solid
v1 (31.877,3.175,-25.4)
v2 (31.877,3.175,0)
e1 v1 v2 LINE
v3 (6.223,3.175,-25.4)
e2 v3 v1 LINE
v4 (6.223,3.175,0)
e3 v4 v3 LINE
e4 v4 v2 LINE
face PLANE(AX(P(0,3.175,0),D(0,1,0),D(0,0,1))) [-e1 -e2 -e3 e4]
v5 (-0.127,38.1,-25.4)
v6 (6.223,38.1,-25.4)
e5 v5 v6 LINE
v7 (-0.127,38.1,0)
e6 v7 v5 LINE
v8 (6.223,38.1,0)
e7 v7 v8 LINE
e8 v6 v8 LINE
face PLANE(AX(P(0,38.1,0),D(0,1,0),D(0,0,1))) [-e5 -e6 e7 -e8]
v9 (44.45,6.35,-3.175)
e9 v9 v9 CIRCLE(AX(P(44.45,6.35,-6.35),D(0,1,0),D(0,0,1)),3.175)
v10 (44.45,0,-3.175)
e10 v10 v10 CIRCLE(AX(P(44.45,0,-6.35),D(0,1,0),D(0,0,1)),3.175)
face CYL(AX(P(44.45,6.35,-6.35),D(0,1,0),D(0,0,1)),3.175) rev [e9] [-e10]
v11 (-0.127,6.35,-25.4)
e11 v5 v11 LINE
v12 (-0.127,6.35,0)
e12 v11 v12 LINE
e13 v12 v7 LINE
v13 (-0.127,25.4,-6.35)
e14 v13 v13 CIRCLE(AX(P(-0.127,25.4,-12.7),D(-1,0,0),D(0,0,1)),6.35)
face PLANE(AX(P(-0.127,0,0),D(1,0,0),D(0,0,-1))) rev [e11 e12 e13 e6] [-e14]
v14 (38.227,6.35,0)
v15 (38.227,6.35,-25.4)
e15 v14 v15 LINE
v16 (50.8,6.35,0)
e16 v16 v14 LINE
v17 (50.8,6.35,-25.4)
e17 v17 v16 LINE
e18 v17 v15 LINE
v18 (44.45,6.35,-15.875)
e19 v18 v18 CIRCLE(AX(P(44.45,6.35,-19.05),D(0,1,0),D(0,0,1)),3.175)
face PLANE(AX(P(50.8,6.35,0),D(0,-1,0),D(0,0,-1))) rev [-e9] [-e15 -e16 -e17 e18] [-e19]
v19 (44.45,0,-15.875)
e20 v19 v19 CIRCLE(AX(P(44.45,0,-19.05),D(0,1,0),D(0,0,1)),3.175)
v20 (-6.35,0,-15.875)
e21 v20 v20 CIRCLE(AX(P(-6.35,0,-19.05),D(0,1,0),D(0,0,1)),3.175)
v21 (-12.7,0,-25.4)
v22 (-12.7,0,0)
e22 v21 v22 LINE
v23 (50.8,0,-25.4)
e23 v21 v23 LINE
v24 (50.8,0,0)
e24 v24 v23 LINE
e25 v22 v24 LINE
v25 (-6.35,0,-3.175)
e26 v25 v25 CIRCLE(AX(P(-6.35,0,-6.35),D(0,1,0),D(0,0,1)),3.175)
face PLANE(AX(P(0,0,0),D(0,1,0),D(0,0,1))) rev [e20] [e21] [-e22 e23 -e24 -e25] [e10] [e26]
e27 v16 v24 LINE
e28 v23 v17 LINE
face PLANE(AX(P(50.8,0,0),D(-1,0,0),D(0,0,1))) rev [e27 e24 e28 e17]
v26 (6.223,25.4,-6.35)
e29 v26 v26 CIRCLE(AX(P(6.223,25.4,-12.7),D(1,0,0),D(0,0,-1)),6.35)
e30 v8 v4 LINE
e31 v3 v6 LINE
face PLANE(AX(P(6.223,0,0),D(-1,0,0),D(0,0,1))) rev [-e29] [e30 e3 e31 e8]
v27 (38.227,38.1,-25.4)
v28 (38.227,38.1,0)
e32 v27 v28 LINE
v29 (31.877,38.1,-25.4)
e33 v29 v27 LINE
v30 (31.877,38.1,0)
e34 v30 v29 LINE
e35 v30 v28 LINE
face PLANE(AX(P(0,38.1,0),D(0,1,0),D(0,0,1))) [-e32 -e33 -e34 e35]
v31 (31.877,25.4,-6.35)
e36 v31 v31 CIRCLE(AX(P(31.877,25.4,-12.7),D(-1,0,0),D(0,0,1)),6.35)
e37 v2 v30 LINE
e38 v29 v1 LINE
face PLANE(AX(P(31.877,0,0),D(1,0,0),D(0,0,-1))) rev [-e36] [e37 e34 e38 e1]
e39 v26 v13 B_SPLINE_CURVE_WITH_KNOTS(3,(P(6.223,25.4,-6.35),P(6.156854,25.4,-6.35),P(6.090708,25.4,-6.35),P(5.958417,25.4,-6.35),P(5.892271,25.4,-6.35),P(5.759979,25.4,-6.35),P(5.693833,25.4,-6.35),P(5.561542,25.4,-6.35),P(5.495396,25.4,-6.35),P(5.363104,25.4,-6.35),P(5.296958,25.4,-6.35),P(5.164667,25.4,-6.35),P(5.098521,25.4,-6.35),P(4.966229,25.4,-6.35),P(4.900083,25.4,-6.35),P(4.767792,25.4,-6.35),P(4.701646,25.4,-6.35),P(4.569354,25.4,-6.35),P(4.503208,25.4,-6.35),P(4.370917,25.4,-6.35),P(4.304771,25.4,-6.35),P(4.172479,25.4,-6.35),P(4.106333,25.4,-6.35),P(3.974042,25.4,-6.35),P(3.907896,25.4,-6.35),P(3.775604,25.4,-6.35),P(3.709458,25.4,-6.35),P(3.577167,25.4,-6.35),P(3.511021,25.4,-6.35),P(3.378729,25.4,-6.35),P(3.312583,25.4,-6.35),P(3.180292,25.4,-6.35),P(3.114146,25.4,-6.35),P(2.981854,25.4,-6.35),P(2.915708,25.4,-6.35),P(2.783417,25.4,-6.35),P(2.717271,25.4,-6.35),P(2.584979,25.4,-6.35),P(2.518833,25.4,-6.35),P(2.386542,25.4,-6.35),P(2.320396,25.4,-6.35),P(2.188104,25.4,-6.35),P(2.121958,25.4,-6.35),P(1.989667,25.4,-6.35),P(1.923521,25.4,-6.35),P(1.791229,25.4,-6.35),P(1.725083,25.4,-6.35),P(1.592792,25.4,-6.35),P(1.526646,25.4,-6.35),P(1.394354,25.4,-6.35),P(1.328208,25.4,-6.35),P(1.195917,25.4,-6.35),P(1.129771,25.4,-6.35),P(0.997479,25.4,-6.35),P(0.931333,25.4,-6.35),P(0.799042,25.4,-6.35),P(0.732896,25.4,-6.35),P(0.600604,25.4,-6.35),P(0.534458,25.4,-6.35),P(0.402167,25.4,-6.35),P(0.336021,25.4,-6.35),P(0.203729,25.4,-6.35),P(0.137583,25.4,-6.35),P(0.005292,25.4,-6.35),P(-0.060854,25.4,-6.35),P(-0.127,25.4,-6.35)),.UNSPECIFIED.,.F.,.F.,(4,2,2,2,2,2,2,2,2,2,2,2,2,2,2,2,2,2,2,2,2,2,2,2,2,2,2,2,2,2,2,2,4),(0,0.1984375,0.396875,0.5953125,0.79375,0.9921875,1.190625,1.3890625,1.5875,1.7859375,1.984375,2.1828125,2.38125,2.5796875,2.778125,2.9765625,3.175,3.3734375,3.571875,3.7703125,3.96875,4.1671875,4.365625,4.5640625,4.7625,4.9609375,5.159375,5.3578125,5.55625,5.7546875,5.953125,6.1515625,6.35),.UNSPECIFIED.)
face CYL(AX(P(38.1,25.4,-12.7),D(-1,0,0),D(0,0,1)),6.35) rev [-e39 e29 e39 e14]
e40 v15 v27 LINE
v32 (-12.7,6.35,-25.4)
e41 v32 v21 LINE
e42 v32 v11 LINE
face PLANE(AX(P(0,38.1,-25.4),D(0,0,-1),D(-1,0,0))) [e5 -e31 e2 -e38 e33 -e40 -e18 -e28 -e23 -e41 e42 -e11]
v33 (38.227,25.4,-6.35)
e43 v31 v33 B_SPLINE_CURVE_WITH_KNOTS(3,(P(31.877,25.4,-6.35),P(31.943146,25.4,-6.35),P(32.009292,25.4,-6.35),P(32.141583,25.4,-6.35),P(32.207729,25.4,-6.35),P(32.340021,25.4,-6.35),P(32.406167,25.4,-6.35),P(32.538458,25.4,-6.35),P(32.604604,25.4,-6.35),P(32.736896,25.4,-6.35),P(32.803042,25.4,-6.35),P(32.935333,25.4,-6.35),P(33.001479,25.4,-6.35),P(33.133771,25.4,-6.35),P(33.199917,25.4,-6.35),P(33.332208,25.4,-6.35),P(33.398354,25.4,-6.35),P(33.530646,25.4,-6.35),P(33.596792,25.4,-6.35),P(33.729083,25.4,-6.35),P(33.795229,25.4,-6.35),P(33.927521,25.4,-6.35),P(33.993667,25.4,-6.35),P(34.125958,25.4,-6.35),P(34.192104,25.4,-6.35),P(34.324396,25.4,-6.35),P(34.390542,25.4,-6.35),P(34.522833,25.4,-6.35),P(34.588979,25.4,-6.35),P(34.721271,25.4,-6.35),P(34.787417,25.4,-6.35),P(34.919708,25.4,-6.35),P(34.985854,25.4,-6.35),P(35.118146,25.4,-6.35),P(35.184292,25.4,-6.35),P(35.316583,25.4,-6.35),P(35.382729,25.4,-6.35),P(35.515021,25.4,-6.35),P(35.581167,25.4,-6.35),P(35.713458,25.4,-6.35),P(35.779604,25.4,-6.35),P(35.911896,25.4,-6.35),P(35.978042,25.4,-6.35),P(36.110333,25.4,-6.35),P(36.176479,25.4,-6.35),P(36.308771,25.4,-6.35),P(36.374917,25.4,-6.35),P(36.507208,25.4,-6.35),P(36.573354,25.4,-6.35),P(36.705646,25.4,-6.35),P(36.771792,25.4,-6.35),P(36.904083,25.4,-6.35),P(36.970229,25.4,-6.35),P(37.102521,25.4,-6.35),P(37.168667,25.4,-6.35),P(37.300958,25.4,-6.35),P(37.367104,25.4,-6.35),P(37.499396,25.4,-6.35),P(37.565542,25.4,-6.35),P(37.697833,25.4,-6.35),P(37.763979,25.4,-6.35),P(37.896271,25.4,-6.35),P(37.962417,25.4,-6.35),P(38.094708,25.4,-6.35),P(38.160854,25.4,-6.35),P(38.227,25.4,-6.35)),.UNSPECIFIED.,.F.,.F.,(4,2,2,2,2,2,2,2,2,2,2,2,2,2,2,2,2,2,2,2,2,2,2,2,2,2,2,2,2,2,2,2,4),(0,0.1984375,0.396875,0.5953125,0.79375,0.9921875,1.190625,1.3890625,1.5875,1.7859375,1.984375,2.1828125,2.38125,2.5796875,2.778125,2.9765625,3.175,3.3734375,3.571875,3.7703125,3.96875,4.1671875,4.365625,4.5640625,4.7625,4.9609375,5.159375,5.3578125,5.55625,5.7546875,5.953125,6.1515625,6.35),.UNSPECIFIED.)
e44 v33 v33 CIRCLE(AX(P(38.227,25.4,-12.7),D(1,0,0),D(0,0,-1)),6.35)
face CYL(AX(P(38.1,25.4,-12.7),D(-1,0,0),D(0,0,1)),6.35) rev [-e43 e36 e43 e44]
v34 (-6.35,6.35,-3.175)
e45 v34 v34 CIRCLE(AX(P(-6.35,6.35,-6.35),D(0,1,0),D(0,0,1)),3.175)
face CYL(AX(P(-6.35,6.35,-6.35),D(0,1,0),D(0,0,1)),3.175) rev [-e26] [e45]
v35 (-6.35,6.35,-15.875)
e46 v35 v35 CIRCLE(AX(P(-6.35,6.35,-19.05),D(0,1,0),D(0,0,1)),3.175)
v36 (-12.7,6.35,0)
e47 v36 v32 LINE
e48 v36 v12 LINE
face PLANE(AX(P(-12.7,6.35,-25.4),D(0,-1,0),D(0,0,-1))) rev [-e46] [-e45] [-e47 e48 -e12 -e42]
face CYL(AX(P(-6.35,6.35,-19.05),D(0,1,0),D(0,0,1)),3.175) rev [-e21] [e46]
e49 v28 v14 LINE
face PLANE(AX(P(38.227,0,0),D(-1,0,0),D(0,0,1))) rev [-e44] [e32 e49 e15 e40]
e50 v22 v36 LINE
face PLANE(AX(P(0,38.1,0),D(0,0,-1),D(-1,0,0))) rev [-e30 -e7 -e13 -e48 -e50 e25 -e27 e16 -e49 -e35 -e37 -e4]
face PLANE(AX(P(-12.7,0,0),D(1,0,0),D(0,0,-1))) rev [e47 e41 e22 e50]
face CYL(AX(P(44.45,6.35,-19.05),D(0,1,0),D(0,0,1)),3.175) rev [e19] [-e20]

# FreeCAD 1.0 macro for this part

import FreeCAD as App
import Part
import Sketcher
Q = App.Units.Quantity


def add_polygon(sketch, points):
    """Adds a closed chain of lines whose ends are joined by coincident constraints."""
    first, n = sketch.GeometryCount, len(points)
    for a, b in zip(points, points[1:] + points[:1]):
        sketch.addGeometry(Part.LineSegment(App.Vector(*a, 0), App.Vector(*b, 0)), False)
    for i in range(n):
        sketch.addConstraint(Sketcher.Constraint("Coincident", first + i, 2, first + (i + 1) % n, 1))

doc = App.newDocument("Part")
params = doc.addObject("Spreadsheet::Sheet", "Params")
for row, (alias, value) in enumerate([
    ("sketch1_height", "1 in"),
    ("sketch1_width", "0.25 in"),
    ("pad1_length", "1.5 in"),
    ("sketch2_height", "1 in"),
    ("sketch2_width", "0.25 in"),
    ("pad2_length", "1.5 in"),
    ("sketch3_width", "1 in"),
    ("pad3_length", "0.125 in"),
    ("sketch4_diameter", "0.5 in"),
    ("sketch5_height", "1 in"),
    ("sketch5_width", "0.25 in"),
    ("pad4_length", "0.5 in"),
    ("sketch6_height", "1 in"),
    ("sketch6_width", "0.25 in"),
    ("pad5_length", "0.5 in"),
    ("sketch7_diameter", "0.25 in"),
    ("hole_diameter", "0.25 in"),
    ("hole_depth", "1 in"),
    ("sketch8_diameter", "0.5 in"),
    ("sketch8_height", "1 in"),
    ("sketch8_width", "1.375 in"),
    ("pocket2_length", "0.005 in"),
    ("sketch9_diameter", "0.5 in"),
    ("sketch9_height", "1 in"),
    ("sketch9_width", "1.375 in"),
    ("pocket3_length", "0.005 in"),
    ("sketch10_diameter", "0.5 in"),
    ("sketch10_height", "1 in"),
    ("sketch10_width", "1.25 in"),
    ("pad6_length", "0.005 in"),
    ("sketch11_diameter", "0.5 in"),
    ("sketch11_height", "1 in"),
    ("sketch11_width", "1.25 in"),
    ("pad7_length", "0.005 in"),
], start=1):
    params.set(f"A{row}", alias)
    params.set(f"B{row}", "=" + value)
    params.setAlias(f"B{row}", alias)

body = doc.addObject("PartDesign::Body", "Body")

# Sketch on XZ plane
sketch1 = doc.addObject("Sketcher::SketchObject", "Sketch")
body.addObject(sketch1)
sketch1.AttachmentSupport = (doc.XZ_Plane, [""])
sketch1.MapMode = "FlatFace"
add_polygon(sketch1, [(0, -25), (0, 0), (6, 0), (6, -25)])  # lines 0-3
sketch1.addConstraint(Sketcher.Constraint("Vertical", 0))
sketch1.addConstraint(Sketcher.Constraint("Horizontal", 1))
sketch1.addConstraint(Sketcher.Constraint("Vertical", 2))
sketch1.addConstraint(Sketcher.Constraint("Horizontal", 3))
sketch1.addConstraint(Sketcher.Constraint("Coincident", 0, 2, -1, 1))
sketch1.addConstraint(Sketcher.Constraint("DistanceY", 0, 1, 0, 2, Q("1 in")))
sketch1.addConstraint(Sketcher.Constraint("DistanceX", 1, 1, 1, 2, Q("0.25 in")))
sketch1.setExpression("Constraints[9]", "Params.sketch1_height")
sketch1.setExpression("Constraints[10]", "Params.sketch1_width")
pad1 = doc.addObject("PartDesign::Pad", "Pad")
body.addObject(pad1)
pad1.Profile = sketch1
pad1.setExpression("Length", "Params.pad1_length")
pad1.Reversed = True
body2 = doc.addObject("PartDesign::Body", "Body001")

# Sketch on XZ plane
sketch2 = doc.addObject("Sketcher::SketchObject", "Sketch001")
body2.addObject(sketch2)
sketch2.AttachmentSupport = (doc.getObject("XZ_Plane001"), [""])
sketch2.MapMode = "FlatFace"
add_polygon(sketch2, [(32, -25), (32, 0), (38, 0), (38, -25)])  # lines 0-3
sketch2.addConstraint(Sketcher.Constraint("Vertical", 0))
sketch2.addConstraint(Sketcher.Constraint("Horizontal", 1))
sketch2.addConstraint(Sketcher.Constraint("Vertical", 2))
sketch2.addConstraint(Sketcher.Constraint("Horizontal", 3))
sketch2.addConstraint(Sketcher.Constraint("PointOnObject", 0, 2, -1))
sketch2.addConstraint(Sketcher.Constraint("DistanceY", 0, 1, 0, 2, Q("1 in")))
sketch2.addConstraint(Sketcher.Constraint("DistanceX", 1, 1, 1, 2, Q("0.25 in")))
sketch2.addConstraint(Sketcher.Constraint("DistanceX", -1, 1, 1, 2, Q("1.5 in")))
sketch2.setExpression("Constraints[9]", "Params.sketch2_height")
sketch2.setExpression("Constraints[10]", "Params.sketch2_width")
pad2 = doc.addObject("PartDesign::Pad", "Pad001")
body2.addObject(pad2)
pad2.Profile = sketch2
pad2.setExpression("Length", "Params.pad2_length")
pad2.Reversed = True
body.AllowCompound = True
doc.recompute()

boolean = doc.addObject("PartDesign::Boolean", "Boolean")
body.addObject(boolean)
boolean.Type = "Fuse"
boolean.addObjects([body2])

# Sketch on XZ plane
sketch3 = doc.addObject("Sketcher::SketchObject", "Sketch002")
body.addObject(sketch3)
sketch3.AttachmentSupport = (doc.XZ_Plane, [""])
sketch3.MapMode = "FlatFace"
add_polygon(sketch3, [(6, -25), (6, 0), (32, 0), (32, -25)])  # lines 0-3
sketch3.addConstraint(Sketcher.Constraint("Vertical", 0))
sketch3.addConstraint(Sketcher.Constraint("Horizontal", 1))
sketch3.addConstraint(Sketcher.Constraint("Vertical", 2))
sketch3.addConstraint(Sketcher.Constraint("Horizontal", 3))
sketch3.addConstraint(Sketcher.Constraint("PointOnObject", 0, 2, -1))
sketch3.addConstraint(Sketcher.Constraint("Equal", 3, 0))
sketch3.addConstraint(Sketcher.Constraint("DistanceX", 1, 1, 1, 2, Q("1 in")))
sketch3.addConstraint(Sketcher.Constraint("DistanceX", -1, 1, 0, 2, Q("0.25 in")))
sketch3.setExpression("Constraints[10]", "Params.sketch3_width")
pad3 = doc.addObject("PartDesign::Pad", "Pad002")
body.addObject(pad3)
pad3.Profile = sketch3
pad3.setExpression("Length", "Params.pad3_length")
pad3.Reversed = True

# Sketch on YZ plane
sketch4 = doc.addObject("Sketcher::SketchObject", "Sketch003")
body.addObject(sketch4)
sketch4.AttachmentSupport = (doc.YZ_Plane, [""])
sketch4.MapMode = "FlatFace"
sketch4.addGeometry(Part.Circle(App.Vector(25, -13, 0), App.Vector(0, 0, 1), 6), False)
sketch4.addConstraint(Sketcher.Constraint("Diameter", 0, Q("0.5 in")))
sketch4.addConstraint(Sketcher.Constraint("DistanceX", -1, 1, 0, 3, Q("1 in")))
sketch4.addConstraint(Sketcher.Constraint("DistanceY", 0, 3, -1, 1, Q("0.5 in")))
sketch4.setExpression("Constraints[0]", "Params.sketch4_diameter")
pocket1 = doc.addObject("PartDesign::Pocket", "Pocket")
body.addObject(pocket1)
pocket1.Profile = sketch4
pocket1.Type = "ThroughAll"
pocket1.Reversed = True

# Sketch on YZ plane
sketch5 = doc.addObject("Sketcher::SketchObject", "Sketch004")
body.addObject(sketch5)
sketch5.AttachmentSupport = (doc.YZ_Plane, [""])
sketch5.MapMode = "FlatFace"
add_polygon(sketch5, [(6, -25), (0, -25), (0, 0), (6, 0)])  # lines 0-3
sketch5.addConstraint(Sketcher.Constraint("Horizontal", 0))
sketch5.addConstraint(Sketcher.Constraint("Vertical", 1))
sketch5.addConstraint(Sketcher.Constraint("Horizontal", 2))
sketch5.addConstraint(Sketcher.Constraint("Vertical", 3))
sketch5.addConstraint(Sketcher.Constraint("Coincident", 1, 2, -1, 1))
sketch5.addConstraint(Sketcher.Constraint("DistanceY", 1, 1, 1, 2, Q("1 in")))
sketch5.addConstraint(Sketcher.Constraint("DistanceX", 0, 2, 0, 1, Q("0.25 in")))
sketch5.setExpression("Constraints[9]", "Params.sketch5_height")
sketch5.setExpression("Constraints[10]", "Params.sketch5_width")
pad4 = doc.addObject("PartDesign::Pad", "Pad003")
body.addObject(pad4)
pad4.Profile = sketch5
pad4.setExpression("Length", "Params.pad4_length")
pad4.Reversed = True

# Sketch on YZ plane
sketch6 = doc.addObject("Sketcher::SketchObject", "Sketch005")
body.addObject(sketch6)
sketch6.AttachmentSupport = (doc.YZ_Plane, [""])
sketch6.MapMode = "FlatFace"
sketch6.AttachmentOffset = App.Placement(App.Vector(0, 0, 1.5 * 25.4), App.Rotation())
add_polygon(sketch6, [(6, 0), (0, 0), (0, -25), (6, -25)])  # lines 0-3
sketch6.addConstraint(Sketcher.Constraint("Horizontal", 0))
sketch6.addConstraint(Sketcher.Constraint("Vertical", 1))
sketch6.addConstraint(Sketcher.Constraint("Horizontal", 2))
sketch6.addConstraint(Sketcher.Constraint("Vertical", 3))
sketch6.addConstraint(Sketcher.Constraint("Coincident", 0, 2, -1, 1))
sketch6.addConstraint(Sketcher.Constraint("DistanceY", 1, 2, 1, 1, Q("1 in")))
sketch6.addConstraint(Sketcher.Constraint("DistanceX", 0, 2, 0, 1, Q("0.25 in")))
sketch6.setExpression("Constraints[9]", "Params.sketch6_height")
sketch6.setExpression("Constraints[10]", "Params.sketch6_width")
pad5 = doc.addObject("PartDesign::Pad", "Pad004")
body.addObject(pad5)
pad5.Profile = sketch6
pad5.setExpression("Length", "Params.pad5_length")

# Sketch on XZ plane
sketch7 = doc.addObject("Sketcher::SketchObject", "Sketch006")
body.addObject(sketch7)
sketch7.AttachmentSupport = (doc.XZ_Plane, [""])
sketch7.MapMode = "FlatFace"
sketch7.AttachmentOffset = App.Placement(App.Vector(0, 0, -0.25 * 25.4), App.Rotation())
sketch7.addGeometry(Part.Circle(App.Vector(-6.3, -19.1, 0), App.Vector(0, 0, 1), 3.2), False)
sketch7.addGeometry(Part.Circle(App.Vector(-6.3, -6.3, 0), App.Vector(0, 0, 1), 3.2), False)
sketch7.addGeometry(Part.Circle(App.Vector(44.5, -6.3, 0), App.Vector(0, 0, 1), 3.2), False)
sketch7.addGeometry(Part.Circle(App.Vector(44.5, -19.1, 0), App.Vector(0, 0, 1), 3.2), False)
sketch7.addConstraint(Sketcher.Constraint("Equal", 0, 1))
sketch7.addConstraint(Sketcher.Constraint("Equal", 1, 2))
sketch7.addConstraint(Sketcher.Constraint("Equal", 2, 3))
sketch7.addConstraint(Sketcher.Constraint("Horizontal", 1, 3, 2, 3))
sketch7.addConstraint(Sketcher.Constraint("Horizontal", 0, 3, 3, 3))
sketch7.addConstraint(Sketcher.Constraint("Vertical", 0, 3, 1, 3))
sketch7.addConstraint(Sketcher.Constraint("Vertical", 2, 3, 3, 3))
sketch7.addConstraint(Sketcher.Constraint("Diameter", 0, Q("0.25 in")))
sketch7.addConstraint(Sketcher.Constraint("DistanceX", 1, 3, 2, 3, Q("2 in")))
sketch7.addConstraint(Sketcher.Constraint("DistanceY", 0, 3, 1, 3, Q("0.5 in")))
sketch7.addConstraint(Sketcher.Constraint("DistanceX", 0, 3, -1, 1, Q("0.25 in")))
sketch7.addConstraint(Sketcher.Constraint("DistanceY", 0, 3, -1, 1, Q("0.75 in")))
sketch7.setExpression("Constraints[7]", "Params.sketch7_diameter")
doc.recompute()
hole = doc.addObject("PartDesign::Hole", "Hole")
body.addObject(hole)
hole.Profile = sketch7
hole.ThreadType = "None"
hole.setExpression("Diameter", "Params.hole_diameter")
hole.DepthType = "Dimension"
hole.setExpression("Depth", "Params.hole_depth")
hole.DrillPoint = "Angled"
hole.DrillPointAngle = 118
hole.Reversed = True

# Sketch on YZ plane
sketch8 = doc.addObject("Sketcher::SketchObject", "Sketch007")
body.addObject(sketch8)
sketch8.AttachmentSupport = (doc.YZ_Plane, [""])
sketch8.MapMode = "FlatFace"
sketch8.AttachmentOffset = App.Placement(App.Vector(0, 0, 0.245 * 25.4), App.Rotation())
add_polygon(sketch8, [(38, 0), (3, 0), (3, -25), (38, -25)])  # lines 0-3
sketch8.addGeometry(Part.Circle(App.Vector(25, -13, 0), App.Vector(0, 0, 1), 6), False)  # 4
sketch8.addConstraint(Sketcher.Constraint("Horizontal", 0))
sketch8.addConstraint(Sketcher.Constraint("Vertical", 1))
sketch8.addConstraint(Sketcher.Constraint("Horizontal", 2))
sketch8.addConstraint(Sketcher.Constraint("Vertical", 3))
sketch8.addConstraint(Sketcher.Constraint("PointOnObject", 0, 2, -1))
sketch8.addConstraint(Sketcher.Constraint("Diameter", 4, Q("0.5 in")))
sketch8.addConstraint(Sketcher.Constraint("DistanceY", 1, 2, 1, 1, Q("1 in")))
sketch8.addConstraint(Sketcher.Constraint("DistanceX", -1, 1, 4, 3, Q("1 in")))
sketch8.addConstraint(Sketcher.Constraint("DistanceY", 4, 3, -1, 1, Q("0.5 in")))
sketch8.addConstraint(Sketcher.Constraint("DistanceX", -1, 1, 2, 2, Q("1.5 in")))
sketch8.addConstraint(Sketcher.Constraint("DistanceX", 0, 2, 0, 1, Q("1.375 in")))
sketch8.setExpression("Constraints[9]", "Params.sketch8_diameter")
sketch8.setExpression("Constraints[10]", "Params.sketch8_height")
sketch8.setExpression("Constraints[14]", "Params.sketch8_width")
pocket2 = doc.addObject("PartDesign::Pocket", "Pocket001")
body.addObject(pocket2)
pocket2.Profile = sketch8
pocket2.setExpression("Length", "Params.pocket2_length")
pocket2.Reversed = True

# Sketch on YZ plane
sketch9 = doc.addObject("Sketcher::SketchObject", "Sketch008")
body.addObject(sketch9)
sketch9.AttachmentSupport = (doc.YZ_Plane, [""])
sketch9.MapMode = "FlatFace"
sketch9.AttachmentOffset = App.Placement(App.Vector(0, 0, 1.25 * 25.4), App.Rotation())
add_polygon(sketch9, [(38, -25), (3, -25), (3, 0), (38, 0)])  # lines 0-3
sketch9.addGeometry(Part.Circle(App.Vector(25, -13, 0), App.Vector(0, 0, 1), 6), False)  # 4
sketch9.addConstraint(Sketcher.Constraint("Horizontal", 0))
sketch9.addConstraint(Sketcher.Constraint("Vertical", 1))
sketch9.addConstraint(Sketcher.Constraint("Horizontal", 2))
sketch9.addConstraint(Sketcher.Constraint("Vertical", 3))
sketch9.addConstraint(Sketcher.Constraint("PointOnObject", 1, 2, -1))
sketch9.addConstraint(Sketcher.Constraint("Diameter", 4, Q("0.5 in")))
sketch9.addConstraint(Sketcher.Constraint("DistanceY", 1, 1, 1, 2, Q("1 in")))
sketch9.addConstraint(Sketcher.Constraint("DistanceX", -1, 1, 4, 3, Q("1 in")))
sketch9.addConstraint(Sketcher.Constraint("DistanceY", 4, 3, -1, 1, Q("0.5 in")))
sketch9.addConstraint(Sketcher.Constraint("DistanceX", -1, 1, 2, 2, Q("1.5 in")))
sketch9.addConstraint(Sketcher.Constraint("DistanceX", 0, 2, 0, 1, Q("1.375 in")))
sketch9.setExpression("Constraints[9]", "Params.sketch9_diameter")
sketch9.setExpression("Constraints[10]", "Params.sketch9_height")
sketch9.setExpression("Constraints[14]", "Params.sketch9_width")
pocket3 = doc.addObject("PartDesign::Pocket", "Pocket002")
body.addObject(pocket3)
pocket3.Profile = sketch9
pocket3.setExpression("Length", "Params.pocket3_length")
pocket3.Reversed = True

# Sketch on YZ plane
sketch10 = doc.addObject("Sketcher::SketchObject", "Sketch009")
body.addObject(sketch10)
sketch10.AttachmentSupport = (doc.YZ_Plane, [""])
sketch10.MapMode = "FlatFace"
sketch10.AttachmentOffset = App.Placement(App.Vector(0, 0, 1.5 * 25.4), App.Rotation())
add_polygon(sketch10, [(38, 0), (6, 0), (6, -25), (38, -25)])  # lines 0-3
sketch10.addGeometry(Part.Circle(App.Vector(25, -13, 0), App.Vector(0, 0, 1), 6), False)  # 4
sketch10.addConstraint(Sketcher.Constraint("Horizontal", 0))
sketch10.addConstraint(Sketcher.Constraint("Vertical", 1))
sketch10.addConstraint(Sketcher.Constraint("Horizontal", 2))
sketch10.addConstraint(Sketcher.Constraint("Vertical", 3))
sketch10.addConstraint(Sketcher.Constraint("PointOnObject", 0, 2, -1))
sketch10.addConstraint(Sketcher.Constraint("Diameter", 4, Q("0.5 in")))
sketch10.addConstraint(Sketcher.Constraint("DistanceY", 1, 2, 1, 1, Q("1 in")))
sketch10.addConstraint(Sketcher.Constraint("DistanceX", -1, 1, 4, 3, Q("1 in")))
sketch10.addConstraint(Sketcher.Constraint("DistanceX", 0, 2, 0, 1, Q("1.25 in")))
sketch10.addConstraint(Sketcher.Constraint("DistanceY", 4, 3, -1, 1, Q("0.5 in")))
sketch10.addConstraint(Sketcher.Constraint("DistanceX", -1, 1, 2, 2, Q("1.5 in")))
sketch10.setExpression("Constraints[9]", "Params.sketch10_diameter")
sketch10.setExpression("Constraints[10]", "Params.sketch10_height")
sketch10.setExpression("Constraints[12]", "Params.sketch10_width")
pad6 = doc.addObject("PartDesign::Pad", "Pad005")
body.addObject(pad6)
pad6.Profile = sketch10
pad6.setExpression("Length", "Params.pad6_length")

# Sketch on YZ plane
sketch11 = doc.addObject("Sketcher::SketchObject", "Sketch010")
body.addObject(sketch11)
sketch11.AttachmentSupport = (doc.YZ_Plane, [""])
sketch11.MapMode = "FlatFace"
sketch11.AttachmentOffset = App.Placement(App.Vector(0, 0, -0.005 * 25.4), App.Rotation())
add_polygon(sketch11, [(38, -25), (6, -25), (6, 0), (38, 0)])  # lines 0-3
sketch11.addGeometry(Part.Circle(App.Vector(25, -13, 0), App.Vector(0, 0, 1), 6), False)  # 4
sketch11.addConstraint(Sketcher.Constraint("Horizontal", 0))
sketch11.addConstraint(Sketcher.Constraint("Vertical", 1))
sketch11.addConstraint(Sketcher.Constraint("Horizontal", 2))
sketch11.addConstraint(Sketcher.Constraint("Vertical", 3))
sketch11.addConstraint(Sketcher.Constraint("PointOnObject", 1, 2, -1))
sketch11.addConstraint(Sketcher.Constraint("Diameter", 4, Q("0.5 in")))
sketch11.addConstraint(Sketcher.Constraint("DistanceY", 1, 1, 1, 2, Q("1 in")))
sketch11.addConstraint(Sketcher.Constraint("DistanceX", -1, 1, 4, 3, Q("1 in")))
sketch11.addConstraint(Sketcher.Constraint("DistanceX", 0, 2, 0, 1, Q("1.25 in")))
sketch11.addConstraint(Sketcher.Constraint("DistanceY", 4, 3, -1, 1, Q("0.5 in")))
sketch11.addConstraint(Sketcher.Constraint("DistanceX", -1, 1, 2, 2, Q("1.5 in")))
sketch11.setExpression("Constraints[9]", "Params.sketch11_diameter")
sketch11.setExpression("Constraints[10]", "Params.sketch11_height")
sketch11.setExpression("Constraints[12]", "Params.sketch11_width")
pad7 = doc.addObject("PartDesign::Pad", "Pad006")
body.addObject(pad7)
pad7.Profile = sketch11
pad7.setExpression("Length", "Params.pad7_length")

doc.recompute()
